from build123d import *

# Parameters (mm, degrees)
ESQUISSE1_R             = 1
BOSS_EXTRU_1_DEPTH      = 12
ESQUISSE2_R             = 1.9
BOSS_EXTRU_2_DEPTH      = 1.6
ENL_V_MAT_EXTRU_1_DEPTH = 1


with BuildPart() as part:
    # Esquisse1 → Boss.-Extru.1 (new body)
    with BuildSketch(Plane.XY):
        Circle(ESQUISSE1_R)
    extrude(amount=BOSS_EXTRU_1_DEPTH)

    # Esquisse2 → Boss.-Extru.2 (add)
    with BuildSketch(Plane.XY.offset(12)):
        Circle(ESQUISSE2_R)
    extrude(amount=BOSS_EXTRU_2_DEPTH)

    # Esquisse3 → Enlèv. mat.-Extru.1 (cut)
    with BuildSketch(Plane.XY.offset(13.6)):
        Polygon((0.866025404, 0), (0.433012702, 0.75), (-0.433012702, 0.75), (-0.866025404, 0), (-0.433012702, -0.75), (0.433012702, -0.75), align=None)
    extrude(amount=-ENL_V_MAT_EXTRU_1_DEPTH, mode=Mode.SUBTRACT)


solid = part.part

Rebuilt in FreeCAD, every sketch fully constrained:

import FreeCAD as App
import Part
import Sketcher

V = App.Vector
Q = App.Units.Quantity

doc = App.newDocument("Part")
body = doc.addObject("PartDesign::Body", "Body")

sketch1 = body.newObject("Sketcher::SketchObject", "Sketch")
sketch1.AttachmentSupport = (doc.getObject("XY_Plane"), [""])
sketch1.MapMode = "FlatFace"
sketch1.addGeometry(Part.Circle(V(0, 0, 0), V(0, 0, 1), 1), False)
sketch1.addConstraint([
    Sketcher.Constraint("Coincident", 0, 3, -1, 1),
    Sketcher.Constraint("Diameter", 0, Q("2 mm")),
])
pad1 = body.newObject("PartDesign::Pad", "Pad")
pad1.Profile = sketch1
pad1.Length = 12

sketch2 = body.newObject("Sketcher::SketchObject", "Sketch001")
sketch2.AttachmentSupport = (doc.getObject("XY_Plane"), [""])
sketch2.MapMode = "FlatFace"
sketch2.AttachmentOffset = App.Placement(V(0, 0, 12), App.Rotation())
sketch2.addGeometry(Part.Circle(V(0, 0, 0), V(0, 0, 1), 1.9), False)
sketch2.addConstraint([
    Sketcher.Constraint("Coincident", 0, 3, -1, 1),
    Sketcher.Constraint("Diameter", 0, Q("3.8 mm")),
])
pad2 = body.newObject("PartDesign::Pad", "Pad001")
pad2.Profile = sketch2
pad2.Length = 1.6

sketch3 = body.newObject("Sketcher::SketchObject", "Sketch002")
sketch3.AttachmentSupport = (doc.getObject("XY_Plane"), [""])
sketch3.MapMode = "FlatFace"
sketch3.AttachmentOffset = App.Placement(V(0, 0, 13.6), App.Rotation())
sketch3.addGeometry([
    Part.LineSegment(V(0.9, 0, 0), V(0.4, 0.8, 0)),
    Part.LineSegment(V(0.4, 0.8, 0), V(-0.4, 0.8, 0)),
    Part.LineSegment(V(-0.4, 0.8, 0), V(-0.9, 0, 0)),
    Part.LineSegment(V(-0.9, 0, 0), V(-0.4, -0.8, 0)),
    Part.LineSegment(V(-0.4, -0.8, 0), V(0.4, -0.8, 0)),
    Part.LineSegment(V(0.4, -0.8, 0), V(0.9, 0, 0)),
], False)
sketch3.addConstraint([
    Sketcher.Constraint("Coincident", 0, 2, 1, 1),
    Sketcher.Constraint("Coincident", 1, 2, 2, 1),
    Sketcher.Constraint("Coincident", 2, 2, 3, 1),
    Sketcher.Constraint("Coincident", 3, 2, 4, 1),
    Sketcher.Constraint("Coincident", 4, 2, 5, 1),
    Sketcher.Constraint("Coincident", 5, 2, 0, 1),
    Sketcher.Constraint("Horizontal", 1),
    Sketcher.Constraint("Horizontal", 4),
    Sketcher.Constraint("Symmetric", 0, 2, 3, 2, -1, 1),
    Sketcher.Constraint("Symmetric", 2, 2, 5, 2, -1, 1),
    Sketcher.Constraint("PointOnObject", 2, 2, -1),
    Sketcher.Constraint("Parallel", 2, 5),
    Sketcher.Constraint("Vertical", 1, 2, 3, 2),
    Sketcher.Constraint("Angle", 0, Q("120 deg")),
    Sketcher.Constraint("DistanceY", 3, 2, 1, 2, Q("1.5 mm")),
    Sketcher.Constraint("DistanceX", 1, 2, 1, 1, Q("0.866025 mm")),
])
pocket1 = body.newObject("PartDesign::Pocket", "Pocket")
pocket1.Profile = sketch3
pocket1.Length = 1

doc.recompute()
